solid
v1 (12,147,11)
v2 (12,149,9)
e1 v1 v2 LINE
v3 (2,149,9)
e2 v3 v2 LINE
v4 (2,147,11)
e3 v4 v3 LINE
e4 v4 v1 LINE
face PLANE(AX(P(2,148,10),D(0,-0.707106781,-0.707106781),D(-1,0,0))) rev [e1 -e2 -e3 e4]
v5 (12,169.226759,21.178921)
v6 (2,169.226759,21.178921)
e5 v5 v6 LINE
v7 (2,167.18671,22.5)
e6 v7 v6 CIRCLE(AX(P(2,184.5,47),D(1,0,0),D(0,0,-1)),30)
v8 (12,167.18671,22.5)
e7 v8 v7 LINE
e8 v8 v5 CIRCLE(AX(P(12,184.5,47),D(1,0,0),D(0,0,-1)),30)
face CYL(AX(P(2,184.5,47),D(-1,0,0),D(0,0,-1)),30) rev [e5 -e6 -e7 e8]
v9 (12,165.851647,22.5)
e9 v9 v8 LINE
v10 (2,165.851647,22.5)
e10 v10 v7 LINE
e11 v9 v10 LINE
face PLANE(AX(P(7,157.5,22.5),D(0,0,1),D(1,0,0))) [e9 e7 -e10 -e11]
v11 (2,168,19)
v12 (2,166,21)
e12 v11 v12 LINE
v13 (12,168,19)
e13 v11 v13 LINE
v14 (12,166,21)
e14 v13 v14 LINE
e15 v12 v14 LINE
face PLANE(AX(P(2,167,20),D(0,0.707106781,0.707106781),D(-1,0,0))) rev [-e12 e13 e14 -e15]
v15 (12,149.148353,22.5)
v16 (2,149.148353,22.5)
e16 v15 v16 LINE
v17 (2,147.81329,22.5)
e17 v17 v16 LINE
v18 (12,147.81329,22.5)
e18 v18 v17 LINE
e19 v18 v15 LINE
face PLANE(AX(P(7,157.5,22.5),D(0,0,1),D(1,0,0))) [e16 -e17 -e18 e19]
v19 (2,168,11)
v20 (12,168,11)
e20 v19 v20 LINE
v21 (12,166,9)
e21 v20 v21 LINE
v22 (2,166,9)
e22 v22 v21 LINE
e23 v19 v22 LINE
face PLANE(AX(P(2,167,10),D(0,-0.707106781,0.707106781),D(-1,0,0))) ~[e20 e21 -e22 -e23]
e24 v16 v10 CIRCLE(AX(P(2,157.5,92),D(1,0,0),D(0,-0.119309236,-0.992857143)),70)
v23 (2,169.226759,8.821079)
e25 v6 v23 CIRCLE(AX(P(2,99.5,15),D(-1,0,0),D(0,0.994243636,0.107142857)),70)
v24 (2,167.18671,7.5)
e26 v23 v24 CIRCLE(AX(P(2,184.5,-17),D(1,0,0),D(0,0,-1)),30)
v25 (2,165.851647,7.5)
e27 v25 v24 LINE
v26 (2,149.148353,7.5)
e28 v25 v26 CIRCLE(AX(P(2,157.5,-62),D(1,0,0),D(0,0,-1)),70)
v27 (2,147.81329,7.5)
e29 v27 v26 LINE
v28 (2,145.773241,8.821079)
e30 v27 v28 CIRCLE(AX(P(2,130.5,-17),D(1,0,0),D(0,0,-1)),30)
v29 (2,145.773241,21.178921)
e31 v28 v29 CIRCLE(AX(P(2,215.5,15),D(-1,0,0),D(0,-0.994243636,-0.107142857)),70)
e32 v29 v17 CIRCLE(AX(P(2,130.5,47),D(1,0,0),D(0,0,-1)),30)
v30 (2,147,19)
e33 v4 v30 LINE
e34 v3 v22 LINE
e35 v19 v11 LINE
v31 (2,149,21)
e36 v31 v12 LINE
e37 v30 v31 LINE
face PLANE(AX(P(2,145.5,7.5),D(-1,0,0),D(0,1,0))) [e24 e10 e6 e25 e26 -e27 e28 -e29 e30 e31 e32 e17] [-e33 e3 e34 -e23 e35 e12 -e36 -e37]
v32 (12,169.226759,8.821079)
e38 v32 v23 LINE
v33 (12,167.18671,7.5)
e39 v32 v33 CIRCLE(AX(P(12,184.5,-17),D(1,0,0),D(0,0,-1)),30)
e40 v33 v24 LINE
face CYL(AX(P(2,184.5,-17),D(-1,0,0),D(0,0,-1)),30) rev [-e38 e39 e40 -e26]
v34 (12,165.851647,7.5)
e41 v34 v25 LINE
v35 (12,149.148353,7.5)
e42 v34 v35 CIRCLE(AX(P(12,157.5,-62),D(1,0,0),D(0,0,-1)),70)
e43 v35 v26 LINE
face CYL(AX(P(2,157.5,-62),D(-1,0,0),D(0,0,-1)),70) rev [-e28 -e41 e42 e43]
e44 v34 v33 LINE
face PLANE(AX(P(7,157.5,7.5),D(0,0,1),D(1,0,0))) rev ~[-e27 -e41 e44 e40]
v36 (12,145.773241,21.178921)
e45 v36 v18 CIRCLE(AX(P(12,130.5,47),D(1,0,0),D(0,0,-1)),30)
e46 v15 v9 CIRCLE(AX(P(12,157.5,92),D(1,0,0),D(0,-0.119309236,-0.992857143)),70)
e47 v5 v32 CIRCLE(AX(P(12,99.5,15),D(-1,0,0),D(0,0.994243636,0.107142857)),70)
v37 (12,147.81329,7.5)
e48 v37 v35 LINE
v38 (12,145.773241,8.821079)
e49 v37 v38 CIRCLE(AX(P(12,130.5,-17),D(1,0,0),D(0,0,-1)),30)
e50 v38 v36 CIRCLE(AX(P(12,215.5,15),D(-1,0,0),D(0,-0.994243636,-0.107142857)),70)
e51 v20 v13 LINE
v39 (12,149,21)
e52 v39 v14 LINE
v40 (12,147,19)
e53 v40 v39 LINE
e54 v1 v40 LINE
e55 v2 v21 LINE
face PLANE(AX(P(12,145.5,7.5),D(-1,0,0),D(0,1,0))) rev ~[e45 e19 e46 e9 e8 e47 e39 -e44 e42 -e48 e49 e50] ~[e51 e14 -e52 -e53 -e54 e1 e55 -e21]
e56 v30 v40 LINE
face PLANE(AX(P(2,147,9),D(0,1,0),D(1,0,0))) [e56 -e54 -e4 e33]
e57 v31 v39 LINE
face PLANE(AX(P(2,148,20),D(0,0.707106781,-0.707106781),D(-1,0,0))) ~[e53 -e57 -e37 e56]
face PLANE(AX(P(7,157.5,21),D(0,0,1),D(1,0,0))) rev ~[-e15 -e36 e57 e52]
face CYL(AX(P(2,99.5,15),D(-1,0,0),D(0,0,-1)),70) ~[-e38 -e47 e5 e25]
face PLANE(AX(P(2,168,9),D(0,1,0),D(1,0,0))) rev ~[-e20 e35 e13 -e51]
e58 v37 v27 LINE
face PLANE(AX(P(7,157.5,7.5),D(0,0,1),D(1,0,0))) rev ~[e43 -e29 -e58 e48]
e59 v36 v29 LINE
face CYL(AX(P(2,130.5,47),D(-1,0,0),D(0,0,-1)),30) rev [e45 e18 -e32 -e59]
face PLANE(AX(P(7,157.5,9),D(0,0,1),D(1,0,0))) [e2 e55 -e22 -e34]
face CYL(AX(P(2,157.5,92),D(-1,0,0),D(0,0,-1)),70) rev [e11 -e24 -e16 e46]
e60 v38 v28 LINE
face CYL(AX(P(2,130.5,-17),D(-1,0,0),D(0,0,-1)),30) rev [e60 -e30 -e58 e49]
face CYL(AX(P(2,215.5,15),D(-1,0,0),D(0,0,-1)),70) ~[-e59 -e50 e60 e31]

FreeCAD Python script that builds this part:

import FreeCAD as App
import Part
import Sketcher


def edges_at(feature, points):
    """Names of the edges that pass closest to the given points."""
    edges = feature.Shape.Edges
    near = lambda p: min(range(len(edges)), key=lambda i: edges[i].distToShape(Part.Vertex(*p))[0])
    return sorted({f"Edge{near(p) + 1}" for p in points})


def add_polygon(sketch, points):
    """Adds a closed chain of lines whose ends are joined by coincident constraints."""
    first, n = sketch.GeometryCount, len(points)
    for a, b in zip(points, points[1:] + points[:1]):
        sketch.addGeometry(Part.LineSegment(App.Vector(*a, 0), App.Vector(*b, 0)), False)
    for i in range(n):
        sketch.addConstraint(Sketcher.Constraint("Coincident", first + i, 2, first + (i + 1) % n, 1))

doc = App.newDocument("Part")
body = doc.addObject("PartDesign::Body", "Body")

sketch1 = body.newObject("Sketcher::SketchObject", "Sketch")
sketch1.AttachmentSupport = (doc.getObject("XY_Plane"), [""])
sketch1.MapMode = "FlatFace"
sketch1.AttachmentOffset = App.Placement(App.Vector(0, 0, 9), App.Rotation())
add_polygon(sketch1, [(2, 33), (2, 12), (12, 12), (12, 33)])
sketch1.addConstraint(Sketcher.Constraint("Vertical", 0))
sketch1.addConstraint(Sketcher.Constraint("Horizontal", 1))
sketch1.addConstraint(Sketcher.Constraint("Vertical", 2))
sketch1.addConstraint(Sketcher.Constraint("Horizontal", 3))
sketch1.addConstraint(Sketcher.Constraint("DistanceX", 1, 1, 1, 2, 10.0))
sketch1.addConstraint(Sketcher.Constraint("DistanceY", 0, 2, 0, 1, 21.0))
sketch1.addConstraint(Sketcher.Constraint("DistanceX", -1, 1, 0, 2, 2.0))
sketch1.addConstraint(Sketcher.Constraint("DistanceY", -1, 1, 0, 2, 12.0))
pad1 = body.newObject("PartDesign::Pad", "Pad")
pad1.Profile = sketch1
pad1.Length = 12
doc.recompute()

chamfer = body.newObject("PartDesign::Chamfer", "Chamfer")
chamfer.Base = (pad1, edges_at(pad1, [
    (7, 12, 9),
    (7, 12, 21),
    (7, 33, 9),
    (7, 33, 21),
]))
chamfer.Size = 2
body2 = doc.addObject("PartDesign::Body", "Body001")
doc.recompute()

body.Placement = App.Placement(App.Vector(0, 135, 0), App.Rotation(App.Vector(0, 0, 1), 0))
boolean = body2.newObject("PartDesign::Boolean", "Boolean")
boolean.Type = "Fuse"
boolean.addObjects([body])
body3 = doc.addObject("PartDesign::Body", "Body002")

sketch2 = body3.newObject("Sketcher::SketchObject", "Sketch001")
sketch2.AttachmentSupport = (doc.getObject("YZ_Plane002"), [""])
sketch2.MapMode = "FlatFace"
sketch2.AttachmentOffset = App.Placement(App.Vector(0, 0, 22), App.Rotation())
sketch2.addGeometry(Part.Circle(App.Vector(-27, 40, 0), App.Vector(0, 0, 1), 30), False)
sketch2.addConstraint(Sketcher.Constraint("Diameter", 0, 60.0))
sketch2.addConstraint(Sketcher.Constraint("DistanceX", 0, 3, -1, 1, 27.0))
sketch2.addConstraint(Sketcher.Constraint("DistanceY", -1, 1, 0, 3, 39.5))
pad2 = body3.newObject("PartDesign::Pad", "Pad001")
pad2.Profile = sketch2
pad2.Length = 10
body4 = doc.addObject("PartDesign::Body", "Body003")

sketch3 = body4.newObject("Sketcher::SketchObject", "Sketch002")
sketch3.AttachmentSupport = (doc.getObject("YZ_Plane003"), [""])
sketch3.MapMode = "FlatFace"
sketch3.AttachmentOffset = App.Placement(App.Vector(0, 0, 22), App.Rotation())
sketch3.addGeometry(Part.Circle(App.Vector(-27, -24, 0), App.Vector(0, 0, 1), 30), False)
sketch3.addConstraint(Sketcher.Constraint("Diameter", 0, 60.0))
sketch3.addConstraint(Sketcher.Constraint("DistanceX", 0, 3, -1, 1, 27.0))
sketch3.addConstraint(Sketcher.Constraint("DistanceY", 0, 3, -1, 1, 24.5))
pad3 = body4.newObject("PartDesign::Pad", "Pad002")
pad3.Profile = sketch3
pad3.Length = 10
body5 = doc.addObject("PartDesign::Body", "Body004")

sketch4 = body5.newObject("Sketcher::SketchObject", "Sketch003")
sketch4.AttachmentSupport = (doc.getObject("YZ_Plane004"), [""])
sketch4.MapMode = "FlatFace"
sketch4.AttachmentOffset = App.Placement(App.Vector(0, 0, 22), App.Rotation())
sketch4.addGeometry(Part.Circle(App.Vector(27, -24, 0), App.Vector(0, 0, 1), 30), False)
sketch4.addConstraint(Sketcher.Constraint("Diameter", 0, 60.0))
sketch4.addConstraint(Sketcher.Constraint("DistanceX", -1, 1, 0, 3, 27.0))
sketch4.addConstraint(Sketcher.Constraint("DistanceY", 0, 3, -1, 1, 24.5))
pad4 = body5.newObject("PartDesign::Pad", "Pad003")
pad4.Profile = sketch4
pad4.Length = 10
body6 = doc.addObject("PartDesign::Body", "Body005")

sketch5 = body6.newObject("Sketcher::SketchObject", "Sketch004")
sketch5.AttachmentSupport = (doc.getObject("YZ_Plane005"), [""])
sketch5.MapMode = "FlatFace"
sketch5.AttachmentOffset = App.Placement(App.Vector(0, 0, 22), App.Rotation())
sketch5.addGeometry(Part.Circle(App.Vector(27, 40, 0), App.Vector(0, 0, 1), 30), False)
sketch5.addConstraint(Sketcher.Constraint("Diameter", 0, 60.0))
sketch5.addConstraint(Sketcher.Constraint("DistanceX", -1, 1, 0, 3, 27.0))
sketch5.addConstraint(Sketcher.Constraint("DistanceY", -1, 1, 0, 3, 39.5))
pad5 = body6.newObject("PartDesign::Pad", "Pad004")
pad5.Profile = sketch5
pad5.Length = 10
body7 = doc.addObject("PartDesign::Body", "Body006")

sketch6 = body7.newObject("Sketcher::SketchObject", "Sketch005")
sketch6.AttachmentSupport = (doc.getObject("YZ_Plane006"), [""])
sketch6.MapMode = "FlatFace"
sketch6.AttachmentOffset = App.Placement(App.Vector(0, 0, 22), App.Rotation())
sketch6.addGeometry(Part.Circle(App.Vector(-58, 8, 0), App.Vector(0, 0, 1), 70), False)
sketch6.addConstraint(Sketcher.Constraint("Diameter", 0, 140.0))
sketch6.addConstraint(Sketcher.Constraint("DistanceX", 0, 3, -1, 1, 58.0))
sketch6.addConstraint(Sketcher.Constraint("DistanceY", -1, 1, 0, 3, 7.5))
pad6 = body7.newObject("PartDesign::Pad", "Pad005")
pad6.Profile = sketch6
pad6.Length = 10
body8 = doc.addObject("PartDesign::Body", "Body007")

sketch7 = body8.newObject("Sketcher::SketchObject", "Sketch006")
sketch7.AttachmentSupport = (doc.getObject("YZ_Plane007"), [""])
sketch7.MapMode = "FlatFace"
sketch7.AttachmentOffset = App.Placement(App.Vector(0, 0, 22), App.Rotation())
sketch7.addGeometry(Part.Circle(App.Vector(58, 8, 0), App.Vector(0, 0, 1), 70), False)
sketch7.addConstraint(Sketcher.Constraint("Diameter", 0, 140.0))
sketch7.addConstraint(Sketcher.Constraint("DistanceX", -1, 1, 0, 3, 58.0))
sketch7.addConstraint(Sketcher.Constraint("DistanceY", -1, 1, 0, 3, 7.5))
pad7 = body8.newObject("PartDesign::Pad", "Pad006")
pad7.Profile = sketch7
pad7.Length = 10
body9 = doc.addObject("PartDesign::Body", "Body008")

sketch8 = body9.newObject("Sketcher::SketchObject", "Sketch007")
sketch8.AttachmentSupport = (doc.getObject("YZ_Plane008"), [""])
sketch8.MapMode = "FlatFace"
sketch8.AttachmentOffset = App.Placement(App.Vector(0, 0, 22), App.Rotation())
sketch8.addGeometry(Part.Circle(App.Vector(0, 84, 0), App.Vector(0, 0, 1), 70), False)
sketch8.addConstraint(Sketcher.Constraint("PointOnObject", 0, 3, -2))
sketch8.addConstraint(Sketcher.Constraint("Diameter", 0, 140.0))
sketch8.addConstraint(Sketcher.Constraint("DistanceY", -1, 1, 0, 3, 84.5))
pad8 = body9.newObject("PartDesign::Pad", "Pad007")
pad8.Profile = sketch8
pad8.Length = 10
body10 = doc.addObject("PartDesign::Body", "Body009")

sketch9 = body10.newObject("Sketcher::SketchObject", "Sketch008")
sketch9.AttachmentSupport = (doc.getObject("YZ_Plane009"), [""])
sketch9.MapMode = "FlatFace"
sketch9.AttachmentOffset = App.Placement(App.Vector(0, 0, 22), App.Rotation())
sketch9.addGeometry(Part.Circle(App.Vector(0, -70, 0), App.Vector(0, 0, 1), 70), False)
sketch9.addConstraint(Sketcher.Constraint("PointOnObject", 0, 3, -2))
sketch9.addConstraint(Sketcher.Constraint("Diameter", 0, 140.0))
sketch9.addConstraint(Sketcher.Constraint("DistanceY", 0, 3, -1, 1, 69.5))
pad9 = body10.newObject("PartDesign::Pad", "Pad008")
pad9.Profile = sketch9
pad9.Length = 10
body11 = doc.addObject("PartDesign::Body", "Body010")

sketch10 = body11.newObject("Sketcher::SketchObject", "Sketch009")
sketch10.AttachmentSupport = (doc.getObject("XY_Plane010"), [""])
sketch10.MapMode = "FlatFace"
add_polygon(sketch10, [(22, 12), (22, -12), (32, -12), (32, 12)])
sketch10.addConstraint(Sketcher.Constraint("Vertical", 0))
sketch10.addConstraint(Sketcher.Constraint("Horizontal", 1))
sketch10.addConstraint(Sketcher.Constraint("Vertical", 2))
sketch10.addConstraint(Sketcher.Constraint("Horizontal", 3))
sketch10.addConstraint(Sketcher.Constraint("DistanceX", 1, 1, 1, 2, 10.0))
sketch10.addConstraint(Sketcher.Constraint("DistanceY", 0, 2, 0, 1, 24.0))
sketch10.addConstraint(Sketcher.Constraint("DistanceX", -1, 1, 0, 2, 22.0))
sketch10.addConstraint(Sketcher.Constraint("DistanceY", 0, 2, -1, 1, 12.0))
pad10 = body11.newObject("PartDesign::Pad", "Pad009")
pad10.Profile = sketch10
pad10.Length = 15
doc.recompute()

boolean2 = body11.newObject("PartDesign::Boolean", "Boolean001")
boolean2.Type = "Cut"
boolean2.addObjects([body10])
doc.recompute()

boolean3 = body11.newObject("PartDesign::Boolean", "Boolean002")
boolean3.Type = "Cut"
boolean3.addObjects([body9])
doc.recompute()

boolean4 = body11.newObject("PartDesign::Boolean", "Boolean003")
boolean4.Type = "Common"
boolean4.addObjects([body8])
doc.recompute()

boolean5 = body11.newObject("PartDesign::Boolean", "Boolean004")
boolean5.Type = "Common"
boolean5.addObjects([body7])
doc.recompute()

boolean6 = body11.newObject("PartDesign::Boolean", "Boolean005")
boolean6.Type = "Cut"
boolean6.addObjects([body6])
doc.recompute()

boolean7 = body11.newObject("PartDesign::Boolean", "Boolean006")
boolean7.Type = "Cut"
boolean7.addObjects([body5])
doc.recompute()

boolean8 = body11.newObject("PartDesign::Boolean", "Boolean007")
boolean8.Type = "Cut"
boolean8.addObjects([body4])
doc.recompute()

boolean9 = body11.newObject("PartDesign::Boolean", "Boolean008")
boolean9.Type = "Cut"
boolean9.addObjects([body3])
body12 = doc.addObject("PartDesign::Body", "Body011")
doc.recompute()

body11.Placement = App.Placement(App.Vector(-20, 157.5, 7.5), App.Rotation(App.Vector(0, 0, 1), 0))
boolean10 = body12.newObject("PartDesign::Boolean", "Boolean009")
boolean10.Type = "Fuse"
boolean10.addObjects([body11])
doc.recompute()

boolean11 = body12.newObject("PartDesign::Boolean", "Boolean010")
boolean11.Type = "Cut"
boolean11.addObjects([body2])

doc.recompute()
